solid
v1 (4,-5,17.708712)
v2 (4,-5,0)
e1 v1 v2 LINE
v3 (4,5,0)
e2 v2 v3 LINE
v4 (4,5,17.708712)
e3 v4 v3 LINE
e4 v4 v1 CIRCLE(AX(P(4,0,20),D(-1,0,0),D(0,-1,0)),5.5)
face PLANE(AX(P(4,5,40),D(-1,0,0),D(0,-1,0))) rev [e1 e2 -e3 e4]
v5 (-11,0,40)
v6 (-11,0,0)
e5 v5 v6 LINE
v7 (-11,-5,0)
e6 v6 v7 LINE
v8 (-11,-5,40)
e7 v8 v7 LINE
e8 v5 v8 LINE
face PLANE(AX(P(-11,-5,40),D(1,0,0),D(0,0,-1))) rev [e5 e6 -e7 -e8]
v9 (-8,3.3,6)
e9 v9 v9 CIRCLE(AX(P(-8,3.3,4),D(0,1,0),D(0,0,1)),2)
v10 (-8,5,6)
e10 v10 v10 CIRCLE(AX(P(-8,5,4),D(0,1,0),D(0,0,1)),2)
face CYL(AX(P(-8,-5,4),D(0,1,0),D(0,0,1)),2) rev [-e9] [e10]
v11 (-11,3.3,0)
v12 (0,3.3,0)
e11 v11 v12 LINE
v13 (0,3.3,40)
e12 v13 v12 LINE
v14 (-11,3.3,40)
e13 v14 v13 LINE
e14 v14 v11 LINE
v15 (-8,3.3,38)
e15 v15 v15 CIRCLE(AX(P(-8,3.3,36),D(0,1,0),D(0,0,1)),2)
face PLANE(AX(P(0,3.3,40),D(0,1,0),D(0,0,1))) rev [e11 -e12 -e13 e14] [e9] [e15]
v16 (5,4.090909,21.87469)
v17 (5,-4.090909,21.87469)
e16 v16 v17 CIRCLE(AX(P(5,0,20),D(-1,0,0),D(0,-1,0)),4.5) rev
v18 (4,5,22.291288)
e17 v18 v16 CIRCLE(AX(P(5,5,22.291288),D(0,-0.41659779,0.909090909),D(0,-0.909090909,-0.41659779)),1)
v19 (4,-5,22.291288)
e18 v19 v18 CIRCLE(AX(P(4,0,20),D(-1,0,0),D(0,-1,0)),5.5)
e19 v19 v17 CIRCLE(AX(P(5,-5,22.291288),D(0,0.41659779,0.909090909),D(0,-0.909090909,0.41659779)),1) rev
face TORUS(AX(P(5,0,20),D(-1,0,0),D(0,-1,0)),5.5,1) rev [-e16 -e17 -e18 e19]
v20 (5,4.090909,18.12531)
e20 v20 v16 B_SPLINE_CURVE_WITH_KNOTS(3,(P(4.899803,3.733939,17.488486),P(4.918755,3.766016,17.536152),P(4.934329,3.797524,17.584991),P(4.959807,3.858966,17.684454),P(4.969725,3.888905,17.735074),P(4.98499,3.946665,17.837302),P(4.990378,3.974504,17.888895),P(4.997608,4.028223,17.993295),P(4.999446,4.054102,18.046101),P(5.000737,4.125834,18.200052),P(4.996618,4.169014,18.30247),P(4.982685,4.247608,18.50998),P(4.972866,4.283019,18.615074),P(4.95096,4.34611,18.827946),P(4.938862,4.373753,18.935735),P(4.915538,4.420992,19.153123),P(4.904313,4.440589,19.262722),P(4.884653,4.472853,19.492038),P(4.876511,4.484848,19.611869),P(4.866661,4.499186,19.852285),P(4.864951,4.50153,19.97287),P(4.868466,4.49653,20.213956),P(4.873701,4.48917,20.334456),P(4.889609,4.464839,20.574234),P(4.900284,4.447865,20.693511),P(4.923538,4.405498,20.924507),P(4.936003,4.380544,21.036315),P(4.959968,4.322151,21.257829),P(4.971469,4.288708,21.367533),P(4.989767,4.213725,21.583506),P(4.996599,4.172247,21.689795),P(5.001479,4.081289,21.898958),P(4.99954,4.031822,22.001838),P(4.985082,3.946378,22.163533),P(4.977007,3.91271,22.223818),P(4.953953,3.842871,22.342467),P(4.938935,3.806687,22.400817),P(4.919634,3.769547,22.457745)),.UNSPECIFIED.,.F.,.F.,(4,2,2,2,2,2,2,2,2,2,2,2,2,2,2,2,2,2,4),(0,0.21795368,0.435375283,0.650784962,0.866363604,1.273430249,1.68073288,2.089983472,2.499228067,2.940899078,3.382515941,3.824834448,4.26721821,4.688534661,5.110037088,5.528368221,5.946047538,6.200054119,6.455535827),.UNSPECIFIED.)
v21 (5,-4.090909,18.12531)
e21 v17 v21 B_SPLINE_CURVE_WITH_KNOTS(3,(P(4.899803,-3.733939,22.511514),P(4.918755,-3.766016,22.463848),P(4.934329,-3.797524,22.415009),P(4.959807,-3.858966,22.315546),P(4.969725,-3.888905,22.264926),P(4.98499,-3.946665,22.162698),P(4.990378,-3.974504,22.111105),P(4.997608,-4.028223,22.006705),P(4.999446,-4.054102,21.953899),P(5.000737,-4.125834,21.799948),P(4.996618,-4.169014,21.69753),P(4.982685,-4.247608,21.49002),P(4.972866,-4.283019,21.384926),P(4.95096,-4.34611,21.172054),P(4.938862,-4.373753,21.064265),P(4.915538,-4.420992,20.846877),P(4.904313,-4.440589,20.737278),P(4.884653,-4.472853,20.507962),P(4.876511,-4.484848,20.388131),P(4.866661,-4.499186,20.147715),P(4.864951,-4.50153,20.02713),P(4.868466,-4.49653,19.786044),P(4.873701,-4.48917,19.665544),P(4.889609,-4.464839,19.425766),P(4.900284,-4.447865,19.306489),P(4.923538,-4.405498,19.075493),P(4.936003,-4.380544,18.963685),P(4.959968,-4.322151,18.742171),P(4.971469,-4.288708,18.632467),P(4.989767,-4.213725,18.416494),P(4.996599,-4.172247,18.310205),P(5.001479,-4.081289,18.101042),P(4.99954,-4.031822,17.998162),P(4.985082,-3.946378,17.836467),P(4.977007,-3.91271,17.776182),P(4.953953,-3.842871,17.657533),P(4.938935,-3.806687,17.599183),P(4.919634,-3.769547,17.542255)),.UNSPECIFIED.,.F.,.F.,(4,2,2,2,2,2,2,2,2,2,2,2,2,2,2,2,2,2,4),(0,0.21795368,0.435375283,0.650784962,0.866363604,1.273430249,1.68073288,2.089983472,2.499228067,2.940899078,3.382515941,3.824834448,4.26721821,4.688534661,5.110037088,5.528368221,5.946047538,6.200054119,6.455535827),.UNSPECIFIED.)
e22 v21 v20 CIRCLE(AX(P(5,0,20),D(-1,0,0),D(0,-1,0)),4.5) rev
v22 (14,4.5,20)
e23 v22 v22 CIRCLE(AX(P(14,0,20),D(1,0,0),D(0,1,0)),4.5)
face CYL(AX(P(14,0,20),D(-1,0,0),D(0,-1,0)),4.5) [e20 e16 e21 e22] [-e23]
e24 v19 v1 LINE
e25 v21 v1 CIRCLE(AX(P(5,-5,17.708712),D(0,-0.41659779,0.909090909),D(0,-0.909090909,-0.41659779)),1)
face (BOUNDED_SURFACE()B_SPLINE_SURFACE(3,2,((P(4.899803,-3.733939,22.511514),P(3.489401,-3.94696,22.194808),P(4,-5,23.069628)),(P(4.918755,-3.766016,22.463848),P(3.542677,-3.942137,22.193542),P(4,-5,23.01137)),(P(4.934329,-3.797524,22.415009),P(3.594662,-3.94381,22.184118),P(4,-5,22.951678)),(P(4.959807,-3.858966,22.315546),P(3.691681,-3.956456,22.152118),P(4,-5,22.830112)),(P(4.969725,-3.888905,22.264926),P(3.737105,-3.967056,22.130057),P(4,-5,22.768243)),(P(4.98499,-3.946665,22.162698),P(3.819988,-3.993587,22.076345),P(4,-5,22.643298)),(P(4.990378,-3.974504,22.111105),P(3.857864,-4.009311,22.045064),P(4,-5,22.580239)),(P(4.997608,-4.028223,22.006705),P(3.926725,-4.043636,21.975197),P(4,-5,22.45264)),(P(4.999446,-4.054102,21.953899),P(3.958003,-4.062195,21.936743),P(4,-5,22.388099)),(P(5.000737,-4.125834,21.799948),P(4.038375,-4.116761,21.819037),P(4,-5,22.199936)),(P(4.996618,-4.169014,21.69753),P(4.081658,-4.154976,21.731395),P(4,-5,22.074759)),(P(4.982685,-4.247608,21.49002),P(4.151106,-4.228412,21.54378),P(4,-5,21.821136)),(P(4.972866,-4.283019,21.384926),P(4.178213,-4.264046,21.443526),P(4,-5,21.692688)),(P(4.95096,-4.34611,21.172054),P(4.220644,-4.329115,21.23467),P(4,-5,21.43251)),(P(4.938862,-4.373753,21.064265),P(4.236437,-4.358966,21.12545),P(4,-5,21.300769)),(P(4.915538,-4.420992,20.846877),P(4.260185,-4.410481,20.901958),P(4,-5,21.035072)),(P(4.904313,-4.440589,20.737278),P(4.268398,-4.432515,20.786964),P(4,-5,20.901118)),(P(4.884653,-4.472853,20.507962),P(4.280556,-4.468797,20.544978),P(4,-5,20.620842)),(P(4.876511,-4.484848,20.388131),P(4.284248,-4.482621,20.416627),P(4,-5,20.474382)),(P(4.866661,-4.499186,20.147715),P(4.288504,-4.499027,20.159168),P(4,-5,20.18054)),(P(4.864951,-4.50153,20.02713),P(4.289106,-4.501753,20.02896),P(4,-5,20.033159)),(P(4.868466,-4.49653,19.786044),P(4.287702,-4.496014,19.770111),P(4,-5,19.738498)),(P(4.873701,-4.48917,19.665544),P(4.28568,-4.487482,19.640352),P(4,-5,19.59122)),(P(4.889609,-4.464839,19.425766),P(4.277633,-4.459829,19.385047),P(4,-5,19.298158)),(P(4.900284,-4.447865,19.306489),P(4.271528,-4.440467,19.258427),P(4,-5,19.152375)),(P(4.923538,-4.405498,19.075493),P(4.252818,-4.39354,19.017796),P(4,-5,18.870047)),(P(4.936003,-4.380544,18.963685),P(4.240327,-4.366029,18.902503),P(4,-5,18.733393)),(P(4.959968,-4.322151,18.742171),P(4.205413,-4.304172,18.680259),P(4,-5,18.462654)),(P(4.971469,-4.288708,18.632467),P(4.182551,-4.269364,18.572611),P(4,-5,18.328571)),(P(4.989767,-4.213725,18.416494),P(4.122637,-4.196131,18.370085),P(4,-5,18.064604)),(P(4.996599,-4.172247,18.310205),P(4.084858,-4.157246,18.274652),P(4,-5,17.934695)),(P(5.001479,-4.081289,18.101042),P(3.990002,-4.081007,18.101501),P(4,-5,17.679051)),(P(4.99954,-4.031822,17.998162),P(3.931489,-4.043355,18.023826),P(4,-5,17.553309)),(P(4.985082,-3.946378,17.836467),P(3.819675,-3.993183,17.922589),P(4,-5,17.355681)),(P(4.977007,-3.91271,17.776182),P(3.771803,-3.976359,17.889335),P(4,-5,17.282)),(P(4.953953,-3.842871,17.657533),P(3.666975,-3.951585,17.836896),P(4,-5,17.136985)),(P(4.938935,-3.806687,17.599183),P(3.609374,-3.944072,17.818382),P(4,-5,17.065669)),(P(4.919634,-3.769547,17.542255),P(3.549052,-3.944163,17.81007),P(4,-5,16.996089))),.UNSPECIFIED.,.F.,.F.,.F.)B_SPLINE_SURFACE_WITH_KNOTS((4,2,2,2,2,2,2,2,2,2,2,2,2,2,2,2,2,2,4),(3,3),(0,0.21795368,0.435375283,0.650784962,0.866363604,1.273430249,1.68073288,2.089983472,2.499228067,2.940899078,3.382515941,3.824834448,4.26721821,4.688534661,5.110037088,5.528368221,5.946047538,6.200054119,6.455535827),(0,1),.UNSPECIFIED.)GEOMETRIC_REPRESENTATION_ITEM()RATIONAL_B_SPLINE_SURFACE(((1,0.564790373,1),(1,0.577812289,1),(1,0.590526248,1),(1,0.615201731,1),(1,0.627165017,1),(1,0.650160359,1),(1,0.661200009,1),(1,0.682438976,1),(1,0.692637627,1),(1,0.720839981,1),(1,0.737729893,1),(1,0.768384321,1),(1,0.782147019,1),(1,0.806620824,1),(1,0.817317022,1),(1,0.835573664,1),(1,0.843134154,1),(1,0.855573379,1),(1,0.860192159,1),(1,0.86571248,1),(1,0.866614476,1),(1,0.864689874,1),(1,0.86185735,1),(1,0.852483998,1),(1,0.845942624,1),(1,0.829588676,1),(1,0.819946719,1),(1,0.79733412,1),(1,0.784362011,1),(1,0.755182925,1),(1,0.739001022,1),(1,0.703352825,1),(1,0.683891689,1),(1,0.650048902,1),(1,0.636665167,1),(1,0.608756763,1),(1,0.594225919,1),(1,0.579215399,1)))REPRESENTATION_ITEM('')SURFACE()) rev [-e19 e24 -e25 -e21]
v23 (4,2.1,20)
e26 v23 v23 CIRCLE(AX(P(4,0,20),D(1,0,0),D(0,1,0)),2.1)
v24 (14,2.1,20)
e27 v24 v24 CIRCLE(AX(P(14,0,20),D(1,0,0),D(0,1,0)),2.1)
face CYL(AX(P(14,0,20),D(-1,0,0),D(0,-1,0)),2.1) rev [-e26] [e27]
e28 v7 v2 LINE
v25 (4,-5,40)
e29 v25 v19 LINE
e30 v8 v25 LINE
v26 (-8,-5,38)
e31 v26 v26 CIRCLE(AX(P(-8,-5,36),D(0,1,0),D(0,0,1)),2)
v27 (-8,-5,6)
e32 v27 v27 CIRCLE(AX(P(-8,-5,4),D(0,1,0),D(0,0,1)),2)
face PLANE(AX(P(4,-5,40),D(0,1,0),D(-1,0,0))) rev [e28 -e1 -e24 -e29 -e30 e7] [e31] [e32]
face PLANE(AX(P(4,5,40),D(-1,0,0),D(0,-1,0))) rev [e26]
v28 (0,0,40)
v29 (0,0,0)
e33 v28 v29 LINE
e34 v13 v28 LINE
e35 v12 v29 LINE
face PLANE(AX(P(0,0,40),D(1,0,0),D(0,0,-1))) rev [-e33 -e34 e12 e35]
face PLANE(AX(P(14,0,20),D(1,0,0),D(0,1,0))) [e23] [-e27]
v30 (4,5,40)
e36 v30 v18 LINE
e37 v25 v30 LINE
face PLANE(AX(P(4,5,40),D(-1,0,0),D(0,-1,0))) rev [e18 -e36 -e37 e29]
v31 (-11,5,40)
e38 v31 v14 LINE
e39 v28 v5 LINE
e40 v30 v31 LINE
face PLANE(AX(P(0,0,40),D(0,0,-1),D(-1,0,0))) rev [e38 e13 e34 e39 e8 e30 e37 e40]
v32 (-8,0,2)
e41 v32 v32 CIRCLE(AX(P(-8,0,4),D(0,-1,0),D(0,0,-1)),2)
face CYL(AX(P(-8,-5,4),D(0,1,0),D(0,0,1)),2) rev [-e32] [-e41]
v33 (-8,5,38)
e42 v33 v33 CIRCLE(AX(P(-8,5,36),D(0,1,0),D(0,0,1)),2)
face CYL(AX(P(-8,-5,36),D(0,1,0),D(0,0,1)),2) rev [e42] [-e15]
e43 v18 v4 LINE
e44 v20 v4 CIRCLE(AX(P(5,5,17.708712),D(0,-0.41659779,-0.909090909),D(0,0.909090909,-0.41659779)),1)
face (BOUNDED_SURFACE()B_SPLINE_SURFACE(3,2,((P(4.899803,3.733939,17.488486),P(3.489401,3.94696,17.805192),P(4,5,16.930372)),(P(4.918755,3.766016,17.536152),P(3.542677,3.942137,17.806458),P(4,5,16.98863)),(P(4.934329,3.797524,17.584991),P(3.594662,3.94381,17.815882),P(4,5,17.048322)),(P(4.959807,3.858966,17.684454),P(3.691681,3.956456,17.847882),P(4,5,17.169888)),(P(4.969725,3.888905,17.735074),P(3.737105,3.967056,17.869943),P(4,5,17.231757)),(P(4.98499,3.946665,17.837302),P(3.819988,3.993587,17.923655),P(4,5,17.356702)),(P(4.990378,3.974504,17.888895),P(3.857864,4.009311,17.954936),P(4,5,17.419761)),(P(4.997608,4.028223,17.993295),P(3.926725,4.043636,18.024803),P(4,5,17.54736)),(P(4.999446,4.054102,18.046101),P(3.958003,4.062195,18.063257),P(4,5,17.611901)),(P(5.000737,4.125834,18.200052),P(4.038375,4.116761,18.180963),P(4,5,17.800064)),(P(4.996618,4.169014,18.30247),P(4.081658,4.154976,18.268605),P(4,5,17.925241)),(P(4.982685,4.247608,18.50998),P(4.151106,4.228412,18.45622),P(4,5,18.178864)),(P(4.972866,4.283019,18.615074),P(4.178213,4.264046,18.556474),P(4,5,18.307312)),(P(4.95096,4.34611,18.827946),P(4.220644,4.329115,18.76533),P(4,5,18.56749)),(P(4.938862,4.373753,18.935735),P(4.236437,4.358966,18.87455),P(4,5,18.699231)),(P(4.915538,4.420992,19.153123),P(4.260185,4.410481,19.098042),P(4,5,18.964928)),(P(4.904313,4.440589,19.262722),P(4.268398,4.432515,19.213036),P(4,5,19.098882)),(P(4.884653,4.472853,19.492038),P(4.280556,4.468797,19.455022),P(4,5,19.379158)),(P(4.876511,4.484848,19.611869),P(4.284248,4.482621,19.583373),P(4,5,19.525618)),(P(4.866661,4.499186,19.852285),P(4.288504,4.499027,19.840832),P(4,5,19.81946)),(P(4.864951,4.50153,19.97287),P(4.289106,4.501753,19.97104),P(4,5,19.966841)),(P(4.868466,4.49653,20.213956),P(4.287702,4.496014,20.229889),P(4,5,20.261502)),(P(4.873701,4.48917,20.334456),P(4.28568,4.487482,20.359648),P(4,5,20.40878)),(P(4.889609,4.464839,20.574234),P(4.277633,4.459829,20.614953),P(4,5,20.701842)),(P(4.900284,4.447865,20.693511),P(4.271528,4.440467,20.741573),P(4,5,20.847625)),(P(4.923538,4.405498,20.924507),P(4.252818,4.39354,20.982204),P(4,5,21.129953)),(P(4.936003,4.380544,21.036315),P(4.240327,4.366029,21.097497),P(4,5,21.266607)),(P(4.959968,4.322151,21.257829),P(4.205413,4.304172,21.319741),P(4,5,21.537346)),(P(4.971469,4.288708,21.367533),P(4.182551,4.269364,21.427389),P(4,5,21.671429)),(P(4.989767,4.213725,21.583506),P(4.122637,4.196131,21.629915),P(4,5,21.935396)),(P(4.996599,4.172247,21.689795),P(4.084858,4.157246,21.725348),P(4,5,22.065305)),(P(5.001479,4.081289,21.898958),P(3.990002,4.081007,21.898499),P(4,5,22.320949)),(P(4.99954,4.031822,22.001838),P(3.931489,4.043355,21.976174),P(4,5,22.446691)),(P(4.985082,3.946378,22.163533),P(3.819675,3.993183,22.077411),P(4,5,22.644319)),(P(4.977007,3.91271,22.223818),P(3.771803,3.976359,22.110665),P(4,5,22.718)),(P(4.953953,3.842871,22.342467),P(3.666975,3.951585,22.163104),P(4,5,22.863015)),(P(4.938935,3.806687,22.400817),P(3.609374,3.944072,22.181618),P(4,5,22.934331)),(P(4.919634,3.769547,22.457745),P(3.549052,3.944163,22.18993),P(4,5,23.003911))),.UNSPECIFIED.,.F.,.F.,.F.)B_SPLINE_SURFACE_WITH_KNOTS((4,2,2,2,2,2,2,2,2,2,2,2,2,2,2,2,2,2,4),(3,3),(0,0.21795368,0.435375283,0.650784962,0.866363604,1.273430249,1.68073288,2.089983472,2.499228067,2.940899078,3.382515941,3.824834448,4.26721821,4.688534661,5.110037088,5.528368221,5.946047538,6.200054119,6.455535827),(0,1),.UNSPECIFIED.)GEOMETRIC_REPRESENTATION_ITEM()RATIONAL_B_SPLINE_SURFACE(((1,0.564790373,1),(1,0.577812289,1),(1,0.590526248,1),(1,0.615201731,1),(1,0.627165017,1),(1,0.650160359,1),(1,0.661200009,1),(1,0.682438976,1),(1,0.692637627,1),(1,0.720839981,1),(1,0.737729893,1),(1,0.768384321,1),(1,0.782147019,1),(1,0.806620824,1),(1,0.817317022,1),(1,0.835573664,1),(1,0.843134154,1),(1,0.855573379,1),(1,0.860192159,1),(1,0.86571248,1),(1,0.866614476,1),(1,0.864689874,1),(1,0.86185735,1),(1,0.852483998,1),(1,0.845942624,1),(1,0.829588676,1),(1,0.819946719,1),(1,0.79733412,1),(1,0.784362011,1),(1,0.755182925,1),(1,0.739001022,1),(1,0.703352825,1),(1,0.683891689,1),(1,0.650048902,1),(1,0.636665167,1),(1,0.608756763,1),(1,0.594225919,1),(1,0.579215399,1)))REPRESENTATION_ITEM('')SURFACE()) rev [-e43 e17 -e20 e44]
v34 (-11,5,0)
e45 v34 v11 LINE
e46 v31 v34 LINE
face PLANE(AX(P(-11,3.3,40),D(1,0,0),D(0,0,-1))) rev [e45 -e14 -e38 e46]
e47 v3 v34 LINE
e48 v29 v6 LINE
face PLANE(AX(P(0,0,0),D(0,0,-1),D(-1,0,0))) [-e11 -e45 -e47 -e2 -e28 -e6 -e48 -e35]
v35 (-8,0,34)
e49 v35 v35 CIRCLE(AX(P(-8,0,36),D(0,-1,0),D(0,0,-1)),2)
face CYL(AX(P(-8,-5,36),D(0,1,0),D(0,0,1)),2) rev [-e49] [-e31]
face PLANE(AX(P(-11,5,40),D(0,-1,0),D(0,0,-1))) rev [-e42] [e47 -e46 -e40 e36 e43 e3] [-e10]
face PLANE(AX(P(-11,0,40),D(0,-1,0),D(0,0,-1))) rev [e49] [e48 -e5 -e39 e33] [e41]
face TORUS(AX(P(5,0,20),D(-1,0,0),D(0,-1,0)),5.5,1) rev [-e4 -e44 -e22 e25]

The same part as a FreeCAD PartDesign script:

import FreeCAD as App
import Part
import Sketcher
from FreeCAD import Vector


def edges_at(feature, points):
    """Names of the edges that pass closest to the given points."""
    edges = feature.Shape.Edges
    near = lambda p: min(range(len(edges)), key=lambda i: edges[i].distToShape(Part.Vertex(*p))[0])
    return sorted({f"Edge{near(p) + 1}" for p in points})

doc = App.newDocument("Part")
body = doc.addObject("PartDesign::Body", "Body")

# Sketch on XY plane
sketch1 = body.newObject("Sketcher::SketchObject", "Sketch")
sketch1.AttachmentSupport = (doc.getObject("XY_Plane"), [""])
sketch1.MapMode = "FlatFace"
sketch1.addGeometry([
    Part.LineSegment(Vector(-11, 5, 0), Vector(-11, 3.3, 0)),  # 0
    Part.LineSegment(Vector(-11, 3.3, 0), Vector(0, 3.3, 0)),  # 1
    Part.LineSegment(Vector(0, 3.3, 0), Vector(0, 0, 0)),  # 2
    Part.LineSegment(Vector(0, 0, 0), Vector(-11, 0, 0)),  # 3
    Part.LineSegment(Vector(-11, 0, 0), Vector(-11, -5, 0)),  # 4
    Part.LineSegment(Vector(-11, -5, 0), Vector(4, -5, 0)),  # 5
    Part.LineSegment(Vector(4, -5, 0), Vector(4, 5, 0)),  # 6
    Part.LineSegment(Vector(4, 5, 0), Vector(-11, 5, 0)),  # 7
], False)
sketch1.addConstraint([
    Sketcher.Constraint("Coincident", 0, 2, 1, 1),
    Sketcher.Constraint("Coincident", 1, 2, 2, 1),
    Sketcher.Constraint("Coincident", 2, 2, 3, 1),
    Sketcher.Constraint("Coincident", 3, 2, 4, 1),
    Sketcher.Constraint("Coincident", 4, 2, 5, 1),
    Sketcher.Constraint("Coincident", 5, 2, 6, 1),
    Sketcher.Constraint("Coincident", 6, 2, 7, 1),
    Sketcher.Constraint("Coincident", 7, 2, 0, 1),
    Sketcher.Constraint("Vertical", 0),
    Sketcher.Constraint("Horizontal", 1),
    Sketcher.Constraint("Vertical", 2),
    Sketcher.Constraint("Horizontal", 3),
    Sketcher.Constraint("Vertical", 4),
    Sketcher.Constraint("Horizontal", 5),
    Sketcher.Constraint("Vertical", 6),
    Sketcher.Constraint("Horizontal", 7),
    Sketcher.Constraint("Coincident", 2, 2, -1, 1),
    Sketcher.Constraint("Symmetric", 4, 2, 7, 2, -1),
    Sketcher.Constraint("DistanceX", 1, 1, 1, 2, 11.0),
    Sketcher.Constraint("DistanceX", 5, 1, 5, 2, 15.0),
    Sketcher.Constraint("DistanceY", 4, 2, 4, 1, 5.0),
    Sketcher.Constraint("DistanceY", 0, 2, 0, 1, 1.7),
])
pad1 = body.newObject("PartDesign::Pad", "Pad")
pad1.Profile = sketch1
pad1.Length = 40

# Sketch on YZ plane
sketch2 = body.newObject("Sketcher::SketchObject", "Sketch001")
sketch2.AttachmentSupport = (doc.getObject("YZ_Plane"), [""])
sketch2.MapMode = "FlatFace"
sketch2.AttachmentOffset = App.Placement(Vector(0, 0, 4), App.Rotation())
sketch2.addGeometry([
    Part.Circle(Vector(0, 20, 0), Vector(0, 0, 1), 4.5),
    Part.Circle(Vector(0, 20, 0), Vector(0, 0, 1), 2.1),
], False)
sketch2.addConstraint([
    Sketcher.Constraint("Coincident", 1, 3, 0, 3),
    Sketcher.Constraint("PointOnObject", 0, 3, -2),
    Sketcher.Constraint("Diameter", 0, 9.0),
    Sketcher.Constraint("Diameter", 1, 4.2),
    Sketcher.Constraint("DistanceY", -1, 1, 0, 3, 20.0),
])
pad2 = body.newObject("PartDesign::Pad", "Pad001")
pad2.Profile = sketch2
pad2.Length = 10
doc.recompute()

fillet = body.newObject("PartDesign::Fillet", "Fillet")
fillet.Base = (pad2, edges_at(pad2, [(4, -4.5, 20)]))
fillet.Radius = 1

# Sketch on XZ plane
sketch3 = body.newObject("Sketcher::SketchObject", "Sketch002")
sketch3.AttachmentSupport = (doc.getObject("XZ_Plane"), [""])
sketch3.MapMode = "FlatFace"
sketch3.AttachmentOffset = App.Placement(Vector(0, 0, -5), App.Rotation())
sketch3.addGeometry([
    Part.Circle(Vector(-8, 36, 0), Vector(0, 0, 1), 2),
    Part.Circle(Vector(-8, 4, 0), Vector(0, 0, 1), 2),
], False)
sketch3.addConstraint([
    Sketcher.Constraint("Equal", 0, 1),
    Sketcher.Constraint("Vertical", 0, 3, 1, 3),
    Sketcher.Constraint("Diameter", 0, 4.0),
    Sketcher.Constraint("DistanceX", 0, 3, -1, 1, 8.0),
    Sketcher.Constraint("DistanceY", -1, 1, 0, 3, 36.0),
    Sketcher.Constraint("DistanceY", -1, 1, 1, 3, 4.0),
])
pocket1 = body.newObject("PartDesign::Pocket", "Pocket")
pocket1.Profile = sketch3
pocket1.Type = "ThroughAll"
pocket1.Reversed = True

doc.recompute()
